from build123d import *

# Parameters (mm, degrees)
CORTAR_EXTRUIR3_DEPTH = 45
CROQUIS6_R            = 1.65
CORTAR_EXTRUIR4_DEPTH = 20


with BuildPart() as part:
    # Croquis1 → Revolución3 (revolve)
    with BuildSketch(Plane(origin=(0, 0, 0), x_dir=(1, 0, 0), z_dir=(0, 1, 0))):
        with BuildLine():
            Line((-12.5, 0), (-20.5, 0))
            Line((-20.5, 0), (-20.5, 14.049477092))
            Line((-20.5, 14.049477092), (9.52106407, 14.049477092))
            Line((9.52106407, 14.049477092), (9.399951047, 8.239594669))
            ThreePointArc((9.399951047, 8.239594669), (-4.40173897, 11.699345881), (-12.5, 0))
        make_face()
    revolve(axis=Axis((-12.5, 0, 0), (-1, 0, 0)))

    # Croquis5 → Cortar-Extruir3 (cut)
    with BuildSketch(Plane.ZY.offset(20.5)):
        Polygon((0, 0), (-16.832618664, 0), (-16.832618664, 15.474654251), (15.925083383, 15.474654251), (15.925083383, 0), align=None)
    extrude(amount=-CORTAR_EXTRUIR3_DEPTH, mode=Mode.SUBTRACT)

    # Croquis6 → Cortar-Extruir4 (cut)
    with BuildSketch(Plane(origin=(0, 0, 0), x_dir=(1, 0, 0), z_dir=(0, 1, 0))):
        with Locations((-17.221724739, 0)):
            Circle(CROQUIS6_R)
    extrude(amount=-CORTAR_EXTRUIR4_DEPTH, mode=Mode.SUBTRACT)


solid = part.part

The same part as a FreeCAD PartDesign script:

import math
import FreeCAD as App
import Part
import Sketcher
from FreeCAD import Vector
Q = App.Units.Quantity

doc = App.newDocument("Part")
params = doc.addObject("Spreadsheet::Sheet", "Params")
for row, (alias, value) in enumerate([
    ("sketch1_radius", "12.5 mm"),
    ("sketch1_width", "8 mm"),
    ("revolution_angle", "360 deg"),
    ("pocket1_length", "45 mm"),
    ("sketch3_diameter", "3.3 mm"),
    ("pocket2_length", "20 mm"),
], start=1):
    params.set(f"A{row}", alias)
    params.set(f"B{row}", "=" + value)
    params.setAlias(f"B{row}", alias)

body = doc.addObject("PartDesign::Body", "Body")

sketch1 = doc.addObject("Sketcher::SketchObject", "Sketch")
body.addObject(sketch1)
sketch1.AttachmentSupport = (doc.XZ_Plane, [""])
sketch1.MapMode = "FlatFace"
sketch1.addGeometry([
    Part.LineSegment(Vector(-20.5, 0, 0), Vector(-12.5, 0, 0)),
    Part.ArcOfCircle(Part.Circle(Vector(0, 0, 0), Vector(0, 0, 1), 12.5), math.radians(180), math.radians(318.763582)),
    Part.LineSegment(Vector(9.399951, -8.239595, 0), Vector(9.521064, -14.049477, 0)),
    Part.LineSegment(Vector(9.521064, -14.049477, 0), Vector(-20.5, -14.049477, 0)),
    Part.LineSegment(Vector(-20.5, -14.049477, 0), Vector(-20.5, 0, 0)),
], False)
sketch1.addConstraint([
    Sketcher.Constraint("Coincident", 0, 2, 1, 1),
    Sketcher.Constraint("Coincident", 1, 2, 2, 1),
    Sketcher.Constraint("Coincident", 2, 2, 3, 1),
    Sketcher.Constraint("Coincident", 3, 2, 4, 1),
    Sketcher.Constraint("Coincident", 4, 2, 0, 1),
    Sketcher.Constraint("Horizontal", 0),
    Sketcher.Constraint("Horizontal", 3),
    Sketcher.Constraint("Vertical", 4),
    Sketcher.Constraint("Coincident", 1, 3, -1, 1),
    Sketcher.Constraint("PointOnObject", 0, 2, -1),
    Sketcher.Constraint("Radius", 1, Q("12.5 mm")),
    Sketcher.Constraint("DistanceX", 0, 1, 0, 2, Q("8 mm")),
    Sketcher.Constraint("DistanceX", 3, 2, 3, 1, Q("30.021064 mm")),
    Sketcher.Constraint("DistanceY", 4, 1, 4, 2, Q("14.049477 mm")),
    Sketcher.Constraint("DistanceX", -1, 1, 1, 2, Q("9.399951 mm")),
])
sketch1.setExpression("Constraints[10]", "Params.sketch1_radius")
sketch1.setExpression("Constraints[11]", "Params.sketch1_width")
revolution = doc.addObject("PartDesign::Revolution", "Revolution")
body.addObject(revolution)
revolution.Profile = sketch1
revolution.ReferenceAxis = (sketch1, ["H_Axis"])
revolution.setExpression("Angle", "Params.revolution_angle")

sketch2 = doc.addObject("Sketcher::SketchObject", "Sketch001")
body.addObject(sketch2)
sketch2.AttachmentSupport = (doc.YZ_Plane, [""])
sketch2.MapMode = "FlatFace"
sketch2.AttachmentOffset = App.Placement(Vector(0, 0, -20.5), App.Rotation())
sketch2.addGeometry([
    Part.LineSegment(Vector(0, -16.832619, 0), Vector(0, 15.925083, 0)),
    Part.LineSegment(Vector(0, 15.925083, 0), Vector(15.474654, 15.925083, 0)),
    Part.LineSegment(Vector(15.474654, 15.925083, 0), Vector(15.474654, -16.832619, 0)),
    Part.LineSegment(Vector(15.474654, -16.832619, 0), Vector(0, -16.832619, 0)),
], False)
sketch2.addConstraint([
    Sketcher.Constraint("Coincident", 0, 2, 1, 1),
    Sketcher.Constraint("Coincident", 1, 2, 2, 1),
    Sketcher.Constraint("Coincident", 2, 2, 3, 1),
    Sketcher.Constraint("Coincident", 3, 2, 0, 1),
    Sketcher.Constraint("Vertical", 0),
    Sketcher.Constraint("Horizontal", 1),
    Sketcher.Constraint("Vertical", 2),
    Sketcher.Constraint("Horizontal", 3),
    Sketcher.Constraint("PointOnObject", 0, 2, -2),
    Sketcher.Constraint("DistanceX", 1, 1, 1, 2, Q("15.474654 mm")),
    Sketcher.Constraint("DistanceY", 0, 1, 0, 2, Q("32.757702 mm")),
    Sketcher.Constraint("DistanceY", 2, 2, -1, 1, Q("16.832619 mm")),
])
pocket1 = doc.addObject("PartDesign::Pocket", "Pocket")
body.addObject(pocket1)
pocket1.Profile = sketch2
pocket1.setExpression("Length", "Params.pocket1_length")
pocket1.Reversed = True

sketch3 = doc.addObject("Sketcher::SketchObject", "Sketch002")
body.addObject(sketch3)
sketch3.AttachmentSupport = (doc.XZ_Plane, [""])
sketch3.MapMode = "FlatFace"
sketch3.addGeometry(Part.Circle(Vector(-17.221725, 0, 0), Vector(0, 0, 1), 1.65), False)
sketch3.addConstraint([
    Sketcher.Constraint("PointOnObject", 0, 3, -1),
    Sketcher.Constraint("Diameter", 0, Q("3.3 mm")),
    Sketcher.Constraint("DistanceX", 0, 3, -1, 1, Q("17.221725 mm")),
])
sketch3.setExpression("Constraints[1]", "Params.sketch3_diameter")
pocket2 = doc.addObject("PartDesign::Pocket", "Pocket001")
body.addObject(pocket2)
pocket2.Profile = sketch3
pocket2.setExpression("Length", "Params.pocket2_length")
pocket2.Reversed = True

doc.recompute()
